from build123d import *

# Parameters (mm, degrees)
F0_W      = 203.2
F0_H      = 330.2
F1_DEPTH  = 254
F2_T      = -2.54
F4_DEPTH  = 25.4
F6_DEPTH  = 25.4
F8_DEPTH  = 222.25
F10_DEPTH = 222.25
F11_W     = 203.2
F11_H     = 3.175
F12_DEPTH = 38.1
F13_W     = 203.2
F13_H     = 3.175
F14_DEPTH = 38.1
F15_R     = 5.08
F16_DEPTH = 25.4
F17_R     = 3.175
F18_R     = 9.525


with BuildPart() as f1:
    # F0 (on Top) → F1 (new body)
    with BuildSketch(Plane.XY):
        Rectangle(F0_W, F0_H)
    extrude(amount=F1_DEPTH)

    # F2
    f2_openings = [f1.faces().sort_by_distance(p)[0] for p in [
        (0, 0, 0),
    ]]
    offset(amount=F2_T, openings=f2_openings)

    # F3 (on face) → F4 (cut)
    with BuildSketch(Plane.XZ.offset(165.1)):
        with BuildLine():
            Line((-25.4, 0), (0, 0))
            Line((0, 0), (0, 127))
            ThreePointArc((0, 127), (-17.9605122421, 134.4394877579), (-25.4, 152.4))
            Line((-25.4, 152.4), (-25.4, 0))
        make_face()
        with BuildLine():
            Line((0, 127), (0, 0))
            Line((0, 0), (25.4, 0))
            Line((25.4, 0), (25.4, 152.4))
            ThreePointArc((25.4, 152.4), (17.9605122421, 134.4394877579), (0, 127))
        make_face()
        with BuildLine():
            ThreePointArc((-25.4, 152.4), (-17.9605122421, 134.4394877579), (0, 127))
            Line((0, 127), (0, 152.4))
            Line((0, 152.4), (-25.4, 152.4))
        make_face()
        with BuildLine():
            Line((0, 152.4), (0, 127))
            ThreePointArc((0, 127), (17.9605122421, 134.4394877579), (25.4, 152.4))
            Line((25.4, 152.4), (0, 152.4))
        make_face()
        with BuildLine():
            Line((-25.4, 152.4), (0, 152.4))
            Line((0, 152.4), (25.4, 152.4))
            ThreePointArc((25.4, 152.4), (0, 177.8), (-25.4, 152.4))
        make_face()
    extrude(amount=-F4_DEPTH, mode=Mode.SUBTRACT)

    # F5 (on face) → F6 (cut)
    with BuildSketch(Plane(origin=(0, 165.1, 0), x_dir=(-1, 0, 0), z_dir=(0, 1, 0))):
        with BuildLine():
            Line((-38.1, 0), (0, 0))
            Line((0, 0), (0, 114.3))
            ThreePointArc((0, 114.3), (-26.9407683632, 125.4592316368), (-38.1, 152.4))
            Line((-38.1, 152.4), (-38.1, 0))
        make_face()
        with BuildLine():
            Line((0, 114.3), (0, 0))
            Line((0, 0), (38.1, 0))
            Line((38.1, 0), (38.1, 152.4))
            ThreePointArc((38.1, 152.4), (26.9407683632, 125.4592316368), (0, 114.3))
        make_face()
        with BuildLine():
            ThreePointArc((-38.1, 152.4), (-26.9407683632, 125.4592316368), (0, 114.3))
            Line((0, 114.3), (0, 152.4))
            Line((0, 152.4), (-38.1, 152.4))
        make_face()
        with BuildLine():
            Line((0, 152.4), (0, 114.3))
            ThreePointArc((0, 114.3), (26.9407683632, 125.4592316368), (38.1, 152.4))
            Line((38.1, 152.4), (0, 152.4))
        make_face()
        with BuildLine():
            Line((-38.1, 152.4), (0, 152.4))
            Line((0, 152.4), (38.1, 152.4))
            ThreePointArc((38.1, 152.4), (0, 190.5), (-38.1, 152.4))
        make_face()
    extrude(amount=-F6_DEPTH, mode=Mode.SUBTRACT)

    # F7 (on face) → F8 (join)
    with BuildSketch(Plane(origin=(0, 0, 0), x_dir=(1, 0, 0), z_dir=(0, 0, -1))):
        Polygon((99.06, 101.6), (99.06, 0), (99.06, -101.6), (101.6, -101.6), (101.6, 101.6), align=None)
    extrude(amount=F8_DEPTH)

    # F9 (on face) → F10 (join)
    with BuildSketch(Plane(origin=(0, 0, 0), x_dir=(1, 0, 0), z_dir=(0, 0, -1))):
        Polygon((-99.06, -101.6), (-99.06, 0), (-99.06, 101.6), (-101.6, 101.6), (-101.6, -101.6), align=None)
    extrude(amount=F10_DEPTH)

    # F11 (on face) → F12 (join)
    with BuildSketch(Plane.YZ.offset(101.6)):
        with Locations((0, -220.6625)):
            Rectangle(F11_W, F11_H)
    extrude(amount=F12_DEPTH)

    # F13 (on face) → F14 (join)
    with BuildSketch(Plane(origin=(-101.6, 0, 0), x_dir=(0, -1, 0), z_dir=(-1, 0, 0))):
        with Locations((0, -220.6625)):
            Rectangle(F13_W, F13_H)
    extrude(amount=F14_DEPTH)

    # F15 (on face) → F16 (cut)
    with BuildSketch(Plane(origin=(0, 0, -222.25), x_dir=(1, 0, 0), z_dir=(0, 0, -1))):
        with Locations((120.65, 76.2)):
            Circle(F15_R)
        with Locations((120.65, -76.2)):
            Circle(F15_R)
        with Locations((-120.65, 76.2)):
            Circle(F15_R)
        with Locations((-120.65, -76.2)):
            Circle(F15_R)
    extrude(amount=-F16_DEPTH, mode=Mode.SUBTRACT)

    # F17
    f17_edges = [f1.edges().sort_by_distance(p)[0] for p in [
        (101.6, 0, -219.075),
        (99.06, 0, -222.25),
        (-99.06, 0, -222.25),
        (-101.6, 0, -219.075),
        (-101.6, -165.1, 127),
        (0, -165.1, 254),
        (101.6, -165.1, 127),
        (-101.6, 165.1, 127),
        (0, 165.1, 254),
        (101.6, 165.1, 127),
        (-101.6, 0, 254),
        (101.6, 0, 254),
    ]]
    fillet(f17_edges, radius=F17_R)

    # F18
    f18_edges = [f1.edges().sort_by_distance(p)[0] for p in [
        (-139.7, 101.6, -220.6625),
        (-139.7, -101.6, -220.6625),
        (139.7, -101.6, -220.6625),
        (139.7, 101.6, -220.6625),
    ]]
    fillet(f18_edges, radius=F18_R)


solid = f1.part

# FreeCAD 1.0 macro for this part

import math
import FreeCAD as App
import Part
import Sketcher
from FreeCAD import Vector
Q = App.Units.Quantity


def edges_at(feature, points):
    """Names of the edges that pass closest to the given points."""
    edges = feature.Shape.Edges
    near = lambda p: min(range(len(edges)), key=lambda i: edges[i].distToShape(Part.Vertex(*p))[0])
    return sorted({f"Edge{near(p) + 1}" for p in points})


def faces_at(feature, points):
    """Names of the faces that lie closest to the given points."""
    faces = feature.Shape.Faces
    near = lambda p: min(range(len(faces)), key=lambda i: faces[i].distToShape(Part.Vertex(*p))[0])
    return sorted({f"Face{near(p) + 1}" for p in points})


def add_polygon(sketch, points):
    """Adds a closed chain of lines whose ends are joined by coincident constraints."""
    first, n = sketch.GeometryCount, len(points)
    for a, b in zip(points, points[1:] + points[:1]):
        sketch.addGeometry(Part.LineSegment(App.Vector(*a, 0), App.Vector(*b, 0)), False)
    for i in range(n):
        sketch.addConstraint(Sketcher.Constraint("Coincident", first + i, 2, first + (i + 1) % n, 1))

doc = App.newDocument("Part")
body = doc.addObject("PartDesign::Body", "Body")

sketch1 = doc.addObject("Sketcher::SketchObject", "Sketch")
body.addObject(sketch1)
sketch1.AttachmentSupport = (doc.XY_Plane, [""])
sketch1.MapMode = "FlatFace"
add_polygon(sketch1, [(-101.6, 165.1), (-101.6, -165.1), (101.6, -165.1), (101.6, 165.1)])
sketch1.addConstraint([
    Sketcher.Constraint("Vertical", 0),
    Sketcher.Constraint("Horizontal", 1),
    Sketcher.Constraint("Vertical", 2),
    Sketcher.Constraint("Horizontal", 3),
    Sketcher.Constraint("Symmetric", 0, 2, 2, 2, -1, 1),
    Sketcher.Constraint("DistanceX", 1, 1, 1, 2, Q("8 in")),
    Sketcher.Constraint("DistanceY", 0, 2, 0, 1, Q("13 in")),
])
pad1 = doc.addObject("PartDesign::Pad", "Pad")
body.addObject(pad1)
pad1.Profile = sketch1
pad1.Length = Q("10 in")
doc.recompute()

thickness = doc.addObject("PartDesign::Thickness", "Thickness")
body.addObject(thickness)
thickness.Base = (pad1, faces_at(pad1, [(0, 0, 0)]))
thickness.Value = Q("0.1 in")
thickness.Reversed = True
thickness.Join = "Arc"

sketch2 = doc.addObject("Sketcher::SketchObject", "Sketch001")
body.addObject(sketch2)
sketch2.AttachmentSupport = (doc.XZ_Plane, [""])
sketch2.MapMode = "FlatFace"
sketch2.AttachmentOffset = App.Placement(Vector(0, 0, 6.5 * 25.4), App.Rotation())
sketch2.addGeometry([
    Part.LineSegment(Vector(-25.4, 0, 0), Vector(25.4, 0, 0)),
    Part.LineSegment(Vector(25.4, 0, 0), Vector(25.4, 152.4, 0)),
    Part.ArcOfCircle(Part.Circle(Vector(0, 152.4, 0), Vector(0, 0, 1), 25.4), math.radians(0), math.radians(180)),
    Part.LineSegment(Vector(-25.4, 152.4, 0), Vector(-25.4, 0, 0)),
], False)
sketch2.addConstraint([
    Sketcher.Constraint("Coincident", 0, 2, 1, 1),
    Sketcher.Constraint("Tangent", 1, 2, 2, 1),
    Sketcher.Constraint("Tangent", 2, 2, 3, 1),
    Sketcher.Constraint("Coincident", 3, 2, 0, 1),
    Sketcher.Constraint("Horizontal", 0),
    Sketcher.Constraint("Vertical", 1),
    Sketcher.Constraint("Vertical", 3),
    Sketcher.Constraint("Symmetric", 0, 2, 3, 2, -1, 1),
    Sketcher.Constraint("Radius", 2, Q("1 in")),
    Sketcher.Constraint("DistanceY", 1, 1, 1, 2, Q("6 in")),
])
pocket1 = doc.addObject("PartDesign::Pocket", "Pocket")
body.addObject(pocket1)
pocket1.Profile = sketch2
pocket1.Length = Q("1 in")

sketch3 = doc.addObject("Sketcher::SketchObject", "Sketch002")
body.addObject(sketch3)
sketch3.AttachmentSupport = (doc.XZ_Plane, [""])
sketch3.MapMode = "FlatFace"
sketch3.AttachmentOffset = App.Placement(Vector(0, 0, -6.5 * 25.4), App.Rotation())
sketch3.addGeometry([
    Part.LineSegment(Vector(38.1, 0, 0), Vector(-38.1, 0, 0)),
    Part.LineSegment(Vector(-38.1, 0, 0), Vector(-38.1, 152.4, 0)),
    Part.ArcOfCircle(Part.Circle(Vector(0, 152.4, 0), Vector(0, 0, 1), 38.1), math.radians(0), math.radians(180)),
    Part.LineSegment(Vector(38.1, 152.4, 0), Vector(38.1, 0, 0)),
], False)
sketch3.addConstraint([
    Sketcher.Constraint("Coincident", 0, 2, 1, 1),
    Sketcher.Constraint("Tangent", 1, 2, 2, 2),
    Sketcher.Constraint("Tangent", 2, 1, 3, 1),
    Sketcher.Constraint("Coincident", 3, 2, 0, 1),
    Sketcher.Constraint("Horizontal", 0),
    Sketcher.Constraint("Vertical", 1),
    Sketcher.Constraint("Vertical", 3),
    Sketcher.Constraint("Symmetric", 0, 2, 3, 2, -1, 1),
    Sketcher.Constraint("Radius", 2, Q("1.5 in")),
    Sketcher.Constraint("DistanceY", 1, 1, 1, 2, Q("6 in")),
])
pocket2 = doc.addObject("PartDesign::Pocket", "Pocket001")
body.addObject(pocket2)
pocket2.Profile = sketch3
pocket2.Length = Q("1 in")
pocket2.Reversed = True

sketch4 = doc.addObject("Sketcher::SketchObject", "Sketch003")
body.addObject(sketch4)
sketch4.AttachmentSupport = (doc.XY_Plane, [""])
sketch4.MapMode = "FlatFace"
add_polygon(sketch4, [(99.06, -101.6), (99.06, 101.6), (101.6, 101.6), (101.6, -101.6)])
sketch4.addConstraint([
    Sketcher.Constraint("Vertical", 0),
    Sketcher.Constraint("Horizontal", 1),
    Sketcher.Constraint("Vertical", 2),
    Sketcher.Constraint("Horizontal", 3),
    Sketcher.Constraint("DistanceY", 0, 1, 0, 2, Q("8 in")),
    Sketcher.Constraint("DistanceX", 1, 1, 1, 2, Q("0.1 in")),
    Sketcher.Constraint("DistanceY", -1, 1, 0, 2, Q("4 in")),
    Sketcher.Constraint("DistanceX", -1, 1, 1, 2, Q("4 in")),
])
pad2 = doc.addObject("PartDesign::Pad", "Pad001")
body.addObject(pad2)
pad2.Profile = sketch4
pad2.Length = Q("8.75 in")
pad2.Reversed = True

sketch5 = doc.addObject("Sketcher::SketchObject", "Sketch004")
body.addObject(sketch5)
sketch5.AttachmentSupport = (doc.XY_Plane, [""])
sketch5.MapMode = "FlatFace"
add_polygon(sketch5, [(-99.06, 101.6), (-99.06, -101.6), (-101.6, -101.6), (-101.6, 101.6)])
sketch5.addConstraint([
    Sketcher.Constraint("Vertical", 0),
    Sketcher.Constraint("Horizontal", 1),
    Sketcher.Constraint("Vertical", 2),
    Sketcher.Constraint("Horizontal", 3),
    Sketcher.Constraint("DistanceY", 0, 2, 0, 1, Q("8 in")),
    Sketcher.Constraint("DistanceX", 1, 2, 1, 1, Q("0.1 in")),
    Sketcher.Constraint("DistanceY", 0, 2, -1, 1, Q("4 in")),
    Sketcher.Constraint("DistanceX", 1, 2, -1, 1, Q("4 in")),
])
pad3 = doc.addObject("PartDesign::Pad", "Pad002")
body.addObject(pad3)
pad3.Profile = sketch5
pad3.Length = Q("8.75 in")
pad3.Reversed = True

sketch6 = doc.addObject("Sketcher::SketchObject", "Sketch005")
body.addObject(sketch6)
sketch6.AttachmentSupport = (doc.YZ_Plane, [""])
sketch6.MapMode = "FlatFace"
sketch6.AttachmentOffset = App.Placement(Vector(0, 0, 4 * 25.4), App.Rotation())
add_polygon(sketch6, [(-101.6, -219.075), (-101.6, -222.25), (101.6, -222.25), (101.6, -219.075)])
sketch6.addConstraint([
    Sketcher.Constraint("Vertical", 0),
    Sketcher.Constraint("Horizontal", 1),
    Sketcher.Constraint("Vertical", 2),
    Sketcher.Constraint("Horizontal", 3),
    Sketcher.Constraint("DistanceX", 1, 1, 1, 2, Q("8 in")),
    Sketcher.Constraint("DistanceX", 0, 2, -1, 1, Q("4 in")),
    Sketcher.Constraint("DistanceY", 0, 2, 0, 1, Q("0.125 in")),
    Sketcher.Constraint("DistanceY", 0, 2, -1, 1, Q("8.75 in")),
])
pad4 = doc.addObject("PartDesign::Pad", "Pad003")
body.addObject(pad4)
pad4.Profile = sketch6
pad4.Length = Q("1.5 in")

sketch7 = doc.addObject("Sketcher::SketchObject", "Sketch006")
body.addObject(sketch7)
sketch7.AttachmentSupport = (doc.YZ_Plane, [""])
sketch7.MapMode = "FlatFace"
sketch7.AttachmentOffset = App.Placement(Vector(0, 0, -4 * 25.4), App.Rotation())
add_polygon(sketch7, [(101.6, -219.075), (101.6, -222.25), (-101.6, -222.25), (-101.6, -219.075)])
sketch7.addConstraint([
    Sketcher.Constraint("Vertical", 0),
    Sketcher.Constraint("Horizontal", 1),
    Sketcher.Constraint("Vertical", 2),
    Sketcher.Constraint("Horizontal", 3),
    Sketcher.Constraint("DistanceX", 1, 2, 1, 1, Q("8 in")),
    Sketcher.Constraint("DistanceX", -1, 1, 0, 2, Q("4 in")),
    Sketcher.Constraint("DistanceY", 0, 2, 0, 1, Q("0.125 in")),
    Sketcher.Constraint("DistanceY", 0, 2, -1, 1, Q("8.75 in")),
])
pad5 = doc.addObject("PartDesign::Pad", "Pad004")
body.addObject(pad5)
pad5.Profile = sketch7
pad5.Length = Q("1.5 in")
pad5.Reversed = True

sketch8 = doc.addObject("Sketcher::SketchObject", "Sketch007")
body.addObject(sketch8)
sketch8.AttachmentSupport = (doc.XY_Plane, [""])
sketch8.MapMode = "FlatFace"
sketch8.AttachmentOffset = App.Placement(Vector(0, 0, -8.75 * 25.4), App.Rotation())
sketch8.addGeometry([
    Part.Circle(Vector(120.65, -76.2, 0), Vector(0, 0, 1), 5.08),
    Part.Circle(Vector(120.65, 76.2, 0), Vector(0, 0, 1), 5.08),
    Part.Circle(Vector(-120.65, -76.2, 0), Vector(0, 0, 1), 5.08),
    Part.Circle(Vector(-120.65, 76.2, 0), Vector(0, 0, 1), 5.08),
], False)
sketch8.addConstraint([
    Sketcher.Constraint("Equal", 0, 1),
    Sketcher.Constraint("Equal", 1, 2),
    Sketcher.Constraint("Equal", 2, 3),
    Sketcher.Constraint("Symmetric", 1, 3, 2, 3, -1, 1),
    Sketcher.Constraint("Symmetric", 0, 3, 3, 3, -1, 1),
    Sketcher.Constraint("Symmetric", 0, 3, 2, 3, -2),
    Sketcher.Constraint("Diameter", 0, Q("0.4 in")),
    Sketcher.Constraint("DistanceY", 0, 3, -1, 1, Q("3 in")),
    Sketcher.Constraint("DistanceX", 2, 3, 0, 3, Q("9.5 in")),
])
pocket3 = doc.addObject("PartDesign::Pocket", "Pocket002")
body.addObject(pocket3)
pocket3.Profile = sketch8
pocket3.Length = Q("1 in")
pocket3.Reversed = True
doc.recompute()

fillet = doc.addObject("PartDesign::Fillet", "Fillet")
body.addObject(fillet)
fillet.Base = (pocket3, edges_at(pocket3, [
    (101.6, 0, -219.075),
    (99.06, 0, -222.25),
    (-99.06, 0, -222.25),
    (-101.6, 0, -219.075),
    (-101.6, -165.1, 127),
    (0, -165.1, 254),
    (101.6, -165.1, 127),
    (-101.6, 165.1, 127),
    (0, 165.1, 254),
    (101.6, 165.1, 127),
    (-101.6, 0, 254),
    (101.6, 0, 254),
]))
fillet.Radius = Q("0.125 in")
doc.recompute()

fillet2 = doc.addObject("PartDesign::Fillet", "Fillet001")
body.addObject(fillet2)
fillet2.Base = (fillet, edges_at(fillet, [
    (-139.7, 101.6, -220.662),
    (-139.7, -101.6, -220.662),
    (139.7, -101.6, -220.662),
    (139.7, 101.6, -220.662),
]))
fillet2.Radius = Q("0.375 in")

doc.recompute()
